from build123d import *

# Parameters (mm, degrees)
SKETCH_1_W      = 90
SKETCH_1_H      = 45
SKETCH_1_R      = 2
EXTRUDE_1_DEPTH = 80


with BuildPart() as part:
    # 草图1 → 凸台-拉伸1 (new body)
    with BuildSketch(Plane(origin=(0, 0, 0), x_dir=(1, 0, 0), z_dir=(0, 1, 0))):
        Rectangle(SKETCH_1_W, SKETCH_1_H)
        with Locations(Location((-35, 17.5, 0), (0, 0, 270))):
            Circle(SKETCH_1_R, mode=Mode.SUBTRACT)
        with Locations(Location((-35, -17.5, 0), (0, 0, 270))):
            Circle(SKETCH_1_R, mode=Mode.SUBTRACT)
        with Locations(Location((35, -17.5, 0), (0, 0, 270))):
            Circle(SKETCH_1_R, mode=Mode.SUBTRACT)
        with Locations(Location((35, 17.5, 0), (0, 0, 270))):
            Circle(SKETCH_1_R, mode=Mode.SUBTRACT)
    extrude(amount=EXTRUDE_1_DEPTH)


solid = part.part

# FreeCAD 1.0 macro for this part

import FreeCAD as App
import Part
import Sketcher
Q = App.Units.Quantity


def add_polygon(sketch, points):
    """Adds a closed chain of lines whose ends are joined by coincident constraints."""
    first, n = sketch.GeometryCount, len(points)
    for a, b in zip(points, points[1:] + points[:1]):
        sketch.addGeometry(Part.LineSegment(App.Vector(*a, 0), App.Vector(*b, 0)), False)
    for i in range(n):
        sketch.addConstraint(Sketcher.Constraint("Coincident", first + i, 2, first + (i + 1) % n, 1))

doc = App.newDocument("Part")
body = doc.addObject("PartDesign::Body", "Body")

sketch1 = doc.addObject("Sketcher::SketchObject", "Sketch")
body.addObject(sketch1)
sketch1.AttachmentSupport = (doc.XZ_Plane, [""])
sketch1.MapMode = "FlatFace"
add_polygon(sketch1, [(-45, -22.5), (-45, 22.5), (45, 22.5), (45, -22.5)])
sketch1.addGeometry(Part.Circle(App.Vector(-35, 17.5, 0), App.Vector(0, 0, 1), 2), False)
sketch1.addGeometry(Part.Circle(App.Vector(35, 17.5, 0), App.Vector(0, 0, 1), 2), False)
sketch1.addGeometry(Part.Circle(App.Vector(-35, -17.5, 0), App.Vector(0, 0, 1), 2), False)
sketch1.addGeometry(Part.Circle(App.Vector(35, -17.5, 0), App.Vector(0, 0, 1), 2), False)
sketch1.addConstraint([
    Sketcher.Constraint("Vertical", 0),
    Sketcher.Constraint("Horizontal", 1),
    Sketcher.Constraint("Vertical", 2),
    Sketcher.Constraint("Horizontal", 3),
    Sketcher.Constraint("Equal", 4, 5),
    Sketcher.Constraint("Equal", 5, 6),
    Sketcher.Constraint("Equal", 6, 7),
    Sketcher.Constraint("Symmetric", 5, 3, 6, 3, -1, 1),
    Sketcher.Constraint("Symmetric", 4, 3, 7, 3, -1, 1),
    Sketcher.Constraint("Symmetric", 0, 2, 2, 2, -1, 1),
    Sketcher.Constraint("Symmetric", 4, 3, 5, 3, -2),
    Sketcher.Constraint("Diameter", 4, Q("4 mm")),
    Sketcher.Constraint("DistanceX", 1, 1, 1, 2, Q("90 mm")),
    Sketcher.Constraint("DistanceY", 0, 1, 0, 2, Q("45 mm")),
    Sketcher.Constraint("DistanceX", 4, 3, -1, 1, Q("35 mm")),
    Sketcher.Constraint("DistanceY", 6, 3, 4, 3, Q("35 mm")),
])
pad1 = doc.addObject("PartDesign::Pad", "Pad")
body.addObject(pad1)
pad1.Profile = sketch1
pad1.Length = 80
pad1.Reversed = True

doc.recompute()
